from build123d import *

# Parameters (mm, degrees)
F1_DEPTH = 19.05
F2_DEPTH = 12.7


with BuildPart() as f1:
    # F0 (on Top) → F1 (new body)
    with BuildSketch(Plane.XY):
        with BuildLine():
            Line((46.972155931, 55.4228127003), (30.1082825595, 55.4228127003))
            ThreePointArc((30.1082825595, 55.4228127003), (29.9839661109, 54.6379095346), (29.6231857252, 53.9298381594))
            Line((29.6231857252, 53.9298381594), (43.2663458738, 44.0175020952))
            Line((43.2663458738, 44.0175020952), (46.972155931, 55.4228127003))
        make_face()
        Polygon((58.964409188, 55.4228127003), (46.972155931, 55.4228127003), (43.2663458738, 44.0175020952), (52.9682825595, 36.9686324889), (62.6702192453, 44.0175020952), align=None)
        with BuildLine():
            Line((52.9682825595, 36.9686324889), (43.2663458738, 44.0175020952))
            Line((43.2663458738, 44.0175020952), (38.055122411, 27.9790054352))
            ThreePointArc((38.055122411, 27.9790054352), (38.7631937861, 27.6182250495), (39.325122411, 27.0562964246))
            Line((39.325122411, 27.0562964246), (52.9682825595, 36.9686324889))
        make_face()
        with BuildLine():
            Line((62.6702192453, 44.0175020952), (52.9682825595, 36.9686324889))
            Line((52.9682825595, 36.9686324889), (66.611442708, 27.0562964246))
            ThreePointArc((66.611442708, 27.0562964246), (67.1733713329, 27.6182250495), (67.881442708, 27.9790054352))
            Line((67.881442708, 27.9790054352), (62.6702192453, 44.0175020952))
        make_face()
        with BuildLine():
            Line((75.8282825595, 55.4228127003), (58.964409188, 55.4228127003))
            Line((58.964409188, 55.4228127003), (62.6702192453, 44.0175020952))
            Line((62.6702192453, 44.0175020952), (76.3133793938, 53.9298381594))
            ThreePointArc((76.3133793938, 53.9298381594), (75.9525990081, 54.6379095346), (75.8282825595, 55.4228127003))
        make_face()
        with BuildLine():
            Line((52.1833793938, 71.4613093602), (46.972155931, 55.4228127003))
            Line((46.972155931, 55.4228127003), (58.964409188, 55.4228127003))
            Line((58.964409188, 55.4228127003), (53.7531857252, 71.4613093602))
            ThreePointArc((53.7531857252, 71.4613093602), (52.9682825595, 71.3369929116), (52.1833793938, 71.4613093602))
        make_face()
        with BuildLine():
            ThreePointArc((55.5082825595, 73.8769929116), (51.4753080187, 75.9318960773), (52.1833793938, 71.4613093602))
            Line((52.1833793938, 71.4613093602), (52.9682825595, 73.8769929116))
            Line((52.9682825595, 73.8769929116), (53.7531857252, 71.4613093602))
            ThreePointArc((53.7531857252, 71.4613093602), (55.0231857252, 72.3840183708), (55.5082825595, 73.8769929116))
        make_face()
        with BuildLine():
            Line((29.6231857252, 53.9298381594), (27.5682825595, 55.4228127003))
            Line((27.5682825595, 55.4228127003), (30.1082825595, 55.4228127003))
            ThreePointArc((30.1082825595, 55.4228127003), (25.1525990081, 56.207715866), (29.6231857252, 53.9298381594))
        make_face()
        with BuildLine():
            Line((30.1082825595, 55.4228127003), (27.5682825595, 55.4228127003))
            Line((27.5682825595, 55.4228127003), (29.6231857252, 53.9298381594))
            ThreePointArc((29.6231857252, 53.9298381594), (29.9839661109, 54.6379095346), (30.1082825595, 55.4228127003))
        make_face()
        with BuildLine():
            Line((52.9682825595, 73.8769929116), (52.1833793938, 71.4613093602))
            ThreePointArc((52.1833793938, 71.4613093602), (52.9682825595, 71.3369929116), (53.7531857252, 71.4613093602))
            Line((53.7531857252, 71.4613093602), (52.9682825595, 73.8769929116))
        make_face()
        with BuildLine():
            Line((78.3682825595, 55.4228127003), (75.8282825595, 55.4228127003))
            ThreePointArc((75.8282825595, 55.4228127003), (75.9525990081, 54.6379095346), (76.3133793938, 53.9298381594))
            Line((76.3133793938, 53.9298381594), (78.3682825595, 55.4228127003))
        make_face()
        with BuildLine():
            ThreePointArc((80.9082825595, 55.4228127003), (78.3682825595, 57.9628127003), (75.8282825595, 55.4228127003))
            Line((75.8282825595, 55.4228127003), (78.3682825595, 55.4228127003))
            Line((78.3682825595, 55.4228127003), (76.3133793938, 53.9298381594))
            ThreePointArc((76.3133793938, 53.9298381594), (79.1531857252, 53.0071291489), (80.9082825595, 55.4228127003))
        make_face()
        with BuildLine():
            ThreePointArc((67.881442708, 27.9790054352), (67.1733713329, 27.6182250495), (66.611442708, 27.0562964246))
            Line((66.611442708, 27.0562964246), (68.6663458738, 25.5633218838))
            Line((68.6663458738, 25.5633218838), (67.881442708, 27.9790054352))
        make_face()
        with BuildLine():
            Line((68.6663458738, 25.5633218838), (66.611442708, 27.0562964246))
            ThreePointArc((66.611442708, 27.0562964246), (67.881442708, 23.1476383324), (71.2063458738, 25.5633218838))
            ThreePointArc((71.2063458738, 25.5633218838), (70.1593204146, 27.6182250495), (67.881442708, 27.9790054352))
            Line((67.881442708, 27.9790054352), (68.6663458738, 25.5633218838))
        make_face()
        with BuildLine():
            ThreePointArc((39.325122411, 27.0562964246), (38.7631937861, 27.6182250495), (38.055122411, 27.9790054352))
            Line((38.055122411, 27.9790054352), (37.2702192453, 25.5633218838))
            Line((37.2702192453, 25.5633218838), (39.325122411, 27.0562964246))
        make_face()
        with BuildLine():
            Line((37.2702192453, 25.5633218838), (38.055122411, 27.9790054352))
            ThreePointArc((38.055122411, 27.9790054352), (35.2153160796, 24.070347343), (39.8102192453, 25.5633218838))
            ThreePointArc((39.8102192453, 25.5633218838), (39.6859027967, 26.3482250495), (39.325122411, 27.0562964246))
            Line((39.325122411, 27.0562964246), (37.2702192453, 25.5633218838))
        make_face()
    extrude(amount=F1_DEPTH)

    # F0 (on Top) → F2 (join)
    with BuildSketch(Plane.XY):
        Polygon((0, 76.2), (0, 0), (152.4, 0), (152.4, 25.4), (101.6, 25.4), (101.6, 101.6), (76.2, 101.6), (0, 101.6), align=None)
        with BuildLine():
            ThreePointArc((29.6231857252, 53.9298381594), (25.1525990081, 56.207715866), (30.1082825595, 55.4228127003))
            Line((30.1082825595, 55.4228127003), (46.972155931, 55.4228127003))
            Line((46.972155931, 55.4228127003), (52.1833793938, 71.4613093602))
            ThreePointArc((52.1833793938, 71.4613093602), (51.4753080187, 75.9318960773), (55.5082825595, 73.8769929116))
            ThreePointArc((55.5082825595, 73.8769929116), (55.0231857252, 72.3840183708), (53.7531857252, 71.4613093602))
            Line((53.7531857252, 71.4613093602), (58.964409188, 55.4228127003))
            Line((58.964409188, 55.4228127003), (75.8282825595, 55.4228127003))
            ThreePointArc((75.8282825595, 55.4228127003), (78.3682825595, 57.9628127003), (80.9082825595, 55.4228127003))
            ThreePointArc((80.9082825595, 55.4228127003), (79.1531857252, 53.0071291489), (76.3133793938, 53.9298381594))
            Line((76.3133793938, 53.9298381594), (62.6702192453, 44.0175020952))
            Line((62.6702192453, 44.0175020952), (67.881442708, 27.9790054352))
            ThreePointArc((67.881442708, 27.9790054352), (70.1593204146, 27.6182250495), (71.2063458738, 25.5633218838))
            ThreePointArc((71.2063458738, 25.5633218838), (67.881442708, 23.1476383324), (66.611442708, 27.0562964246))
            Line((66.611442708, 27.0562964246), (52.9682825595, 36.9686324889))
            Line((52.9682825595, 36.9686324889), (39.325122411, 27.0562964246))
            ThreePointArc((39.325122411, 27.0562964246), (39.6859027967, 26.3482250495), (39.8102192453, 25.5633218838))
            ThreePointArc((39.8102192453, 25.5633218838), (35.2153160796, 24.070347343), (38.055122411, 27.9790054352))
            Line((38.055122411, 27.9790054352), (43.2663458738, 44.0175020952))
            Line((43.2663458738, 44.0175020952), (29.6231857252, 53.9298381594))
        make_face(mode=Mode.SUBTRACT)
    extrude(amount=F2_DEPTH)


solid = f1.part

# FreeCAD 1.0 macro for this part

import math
import FreeCAD as App
import Part
import Sketcher
from FreeCAD import Vector
Q = App.Units.Quantity


def add_polygon(sketch, points):
    """Adds a closed chain of lines whose ends are joined by coincident constraints."""
    first, n = sketch.GeometryCount, len(points)
    for a, b in zip(points, points[1:] + points[:1]):
        sketch.addGeometry(Part.LineSegment(App.Vector(*a, 0), App.Vector(*b, 0)), False)
    for i in range(n):
        sketch.addConstraint(Sketcher.Constraint("Coincident", first + i, 2, first + (i + 1) % n, 1))

doc = App.newDocument("Part")
params = doc.addObject("Spreadsheet::Sheet", "Params")
for row, (alias, value) in enumerate([
    ("sketch1_radius", "0.1 in"),
    ("pad1_length", "0.75 in"),
    ("sketch2_radius", "0.1 in"),
    ("sketch2_width", "6 in"),
    ("sketch2_width2", "2 in"),
    ("sketch2_height", "1 in"),
    ("pad2_length", "0.5 in"),
], start=1):
    params.set(f"A{row}", alias)
    params.set(f"B{row}", "=" + value)
    params.setAlias(f"B{row}", alias)

body = doc.addObject("PartDesign::Body", "Body")

# Sketch on XY plane
sketch1 = body.newObject("Sketcher::SketchObject", "Sketch")
sketch1.AttachmentSupport = (doc.getObject("XY_Plane"), [""])
sketch1.MapMode = "FlatFace"
sketch1.addGeometry([
    Part.LineSegment(Vector(29.6, 53.9, 0), Vector(43.3, 44, 0)),  # 0
    Part.LineSegment(Vector(43.3, 44, 0), Vector(38.1, 28, 0)),  # 1
    Part.ArcOfCircle(Part.Circle(Vector(37.3, 25.6, 0), Vector(0, 0, 1), 2.5), math.radians(72), math.radians(360)),  # 2
    Part.ArcOfCircle(Part.Circle(Vector(37.3, 25.6, 0), Vector(0, 0, 1), 2.5), math.radians(0), math.radians(36)),  # 3
    Part.LineSegment(Vector(39.3, 27.1, 0), Vector(53, 37, 0)),  # 4
    Part.LineSegment(Vector(53, 37, 0), Vector(66.6, 27.1, 0)),  # 5
    Part.ArcOfCircle(Part.Circle(Vector(68.7, 25.6, 0), Vector(0, 0, 1), 2.5), math.radians(144), math.radians(360)),  # 6
    Part.ArcOfCircle(Part.Circle(Vector(68.7, 25.6, 0), Vector(0, 0, 1), 2.5), math.radians(0), math.radians(108)),  # 7
    Part.LineSegment(Vector(67.9, 28, 0), Vector(62.7, 44, 0)),  # 8
    Part.LineSegment(Vector(62.7, 44, 0), Vector(76.3, 53.9, 0)),  # 9
    Part.ArcOfCircle(Part.Circle(Vector(78.4, 55.4, 0), Vector(0, 0, 1), 2.5), math.radians(-144), math.radians(0)),  # 10
    Part.ArcOfCircle(Part.Circle(Vector(78.4, 55.4, 0), Vector(0, 0, 1), 2.5), math.radians(0), math.radians(180)),  # 11
    Part.LineSegment(Vector(75.8, 55.4, 0), Vector(59, 55.4, 0)),  # 12
    Part.LineSegment(Vector(59, 55.4, 0), Vector(53.8, 71.5, 0)),  # 13
    Part.ArcOfCircle(Part.Circle(Vector(53, 73.9, 0), Vector(0, 0, 1), 2.5), math.radians(-72), math.radians(0)),  # 14
    Part.ArcOfCircle(Part.Circle(Vector(53, 73.9, 0), Vector(0, 0, 1), 2.5), math.radians(0), math.radians(252)),  # 15
    Part.LineSegment(Vector(52.2, 71.5, 0), Vector(47, 55.4, 0)),  # 16
    Part.LineSegment(Vector(47, 55.4, 0), Vector(30.1, 55.4, 0)),  # 17
    Part.ArcOfCircle(Part.Circle(Vector(27.6, 55.4, 0), Vector(0, 0, 1), 2.5), math.radians(0), math.radians(324)),  # 18
], False)
sketch1.addConstraint([
    Sketcher.Constraint("Coincident", 0, 2, 1, 1),
    Sketcher.Constraint("Coincident", 1, 2, 2, 1),
    Sketcher.Constraint("Tangent", 2, 2, 3, 1),
    Sketcher.Constraint("Coincident", 3, 2, 4, 1),
    Sketcher.Constraint("Coincident", 4, 2, 5, 1),
    Sketcher.Constraint("Coincident", 5, 2, 6, 1),
    Sketcher.Constraint("Tangent", 6, 2, 7, 1),
    Sketcher.Constraint("Coincident", 7, 2, 8, 1),
    Sketcher.Constraint("Coincident", 8, 2, 9, 1),
    Sketcher.Constraint("Coincident", 9, 2, 10, 1),
    Sketcher.Constraint("Tangent", 10, 2, 11, 1),
    Sketcher.Constraint("Coincident", 11, 2, 12, 1),
    Sketcher.Constraint("Coincident", 12, 2, 13, 1),
    Sketcher.Constraint("Coincident", 13, 2, 14, 1),
    Sketcher.Constraint("Tangent", 14, 2, 15, 1),
    Sketcher.Constraint("Coincident", 15, 2, 16, 1),
    Sketcher.Constraint("Coincident", 16, 2, 17, 1),
    Sketcher.Constraint("Coincident", 17, 2, 18, 1),
    Sketcher.Constraint("Coincident", 18, 2, 0, 1),
    Sketcher.Constraint("Horizontal", 12),
    Sketcher.Constraint("Horizontal", 17),
    Sketcher.Constraint("Equal", 2, 3),
    Sketcher.Constraint("Equal", 3, 6),
    Sketcher.Constraint("Equal", 6, 7),
    Sketcher.Constraint("Equal", 7, 10),
    Sketcher.Constraint("Equal", 10, 11),
    Sketcher.Constraint("Equal", 11, 14),
    Sketcher.Constraint("Equal", 14, 15),
    Sketcher.Constraint("Equal", 15, 18),
    Sketcher.Constraint("Parallel", 0, 5),
    Sketcher.Constraint("Parallel", 4, 9),
    Sketcher.Constraint("Parallel", 8, 13),
    Sketcher.Constraint("Parallel", 1, 16),
    Sketcher.Constraint("Horizontal", 3, 3, 6, 3),
    Sketcher.Constraint("Horizontal", 11, 3, 18, 3),
    Sketcher.Constraint("Horizontal", 7, 3, 2, 2),
    Sketcher.Constraint("Horizontal", 3, 2, 5, 2),
    Sketcher.Constraint("Horizontal", 2, 2, 6, 2),
    Sketcher.Constraint("Horizontal", 1, 2, 7, 2),
    Sketcher.Constraint("Horizontal", 0, 2, 8, 2),
    Sketcher.Constraint("Horizontal", 18, 3, 10, 2),
    Sketcher.Constraint("Horizontal", 10, 2, 11, 2),
    Sketcher.Constraint("Horizontal", 15, 3, 14, 2),
    Sketcher.Constraint("Horizontal", 13, 2, 15, 2),
    Sketcher.Constraint("Horizontal", 12, 2, 16, 2),
    Sketcher.Constraint("Horizontal", 9, 2, 18, 2),
    Sketcher.Constraint("Vertical", 15, 3, 4, 2),
    Sketcher.Constraint("Equal", 12, 17),
    Sketcher.Constraint("Equal", 0, 1),
    Sketcher.Constraint("Equal", 1, 4),
    Sketcher.Constraint("Equal", 4, 5),
    Sketcher.Constraint("Equal", 9, 13),
    Sketcher.Constraint("Radius", 2, Q("0.1 in")),
    Sketcher.Constraint("Angle", 0, Q("-36 deg")),
    Sketcher.Constraint("Angle", 1, Q("-108 deg")),
    Sketcher.Constraint("DistanceX", 14, 3, 10, 3, Q("1 in")),
    Sketcher.Constraint("DistanceX", 0, 2, 6, 3, Q("1 in")),
    Sketcher.Constraint("DistanceX", 1, 2, 3, 2, Q("0.05 in")),
    Sketcher.Constraint("DistanceX", 12, 2, 12, 1, Q("16.863873 mm")),
    Sketcher.Constraint("DistanceX", -1, 1, 2, 3, Q("37.270219 mm")),
    Sketcher.Constraint("DistanceY", -1, 1, 2, 3, Q("25.563322 mm")),
    Sketcher.Constraint("DistanceX", -1, 1, 9, 2, Q("76.313379 mm")),
])
sketch1.setExpression("Constraints[52]", "Params.sketch1_radius")
pad1 = body.newObject("PartDesign::Pad", "Pad")
pad1.Profile = sketch1
pad1.setExpression("Length", "Params.pad1_length")

# Sketch on XY plane
sketch2 = body.newObject("Sketcher::SketchObject", "Sketch001")
sketch2.AttachmentSupport = (doc.getObject("XY_Plane"), [""])
sketch2.MapMode = "FlatFace"
add_polygon(sketch2, [(0, 0), (152.4, 0), (152.4, 25.4), (101.6, 25.4), (101.6, 101.6), (0, 101.6)])  # lines 0-5
sketch2.addGeometry(Part.LineSegment(Vector(43.3, 44, 0), Vector(29.6, 53.9, 0)), False)  # 6
sketch2.addGeometry(Part.ArcOfCircle(Part.Circle(Vector(27.6, 55.4, 0), Vector(0, 0, 1), 2.5), math.radians(0), math.radians(324)), False)  # 7
sketch2.addGeometry(Part.LineSegment(Vector(30.1, 55.4, 0), Vector(47, 55.4, 0)), False)  # 8
sketch2.addGeometry(Part.LineSegment(Vector(47, 55.4, 0), Vector(52.2, 71.5, 0)), False)  # 9
sketch2.addGeometry(Part.ArcOfCircle(Part.Circle(Vector(53, 73.9, 0), Vector(0, 0, 1), 2.5), math.radians(0), math.radians(252)), False)  # 10
sketch2.addGeometry(Part.ArcOfCircle(Part.Circle(Vector(53, 73.9, 0), Vector(0, 0, 1), 2.5), math.radians(-72), math.radians(0)), False)  # 11
sketch2.addGeometry(Part.LineSegment(Vector(53.8, 71.5, 0), Vector(59, 55.4, 0)), False)  # 12
sketch2.addGeometry(Part.LineSegment(Vector(59, 55.4, 0), Vector(75.8, 55.4, 0)), False)  # 13
sketch2.addGeometry(Part.ArcOfCircle(Part.Circle(Vector(78.4, 55.4, 0), Vector(0, 0, 1), 2.5), math.radians(0), math.radians(180)), False)  # 14
sketch2.addGeometry(Part.ArcOfCircle(Part.Circle(Vector(78.4, 55.4, 0), Vector(0, 0, 1), 2.5), math.radians(-144), math.radians(0)), False)  # 15
sketch2.addGeometry(Part.LineSegment(Vector(76.3, 53.9, 0), Vector(62.7, 44, 0)), False)  # 16
sketch2.addGeometry(Part.LineSegment(Vector(62.7, 44, 0), Vector(67.9, 28, 0)), False)  # 17
sketch2.addGeometry(Part.ArcOfCircle(Part.Circle(Vector(68.7, 25.6, 0), Vector(0, 0, 1), 2.5), math.radians(0), math.radians(108)), False)  # 18
sketch2.addGeometry(Part.ArcOfCircle(Part.Circle(Vector(68.7, 25.6, 0), Vector(0, 0, 1), 2.5), math.radians(144), math.radians(360)), False)  # 19
sketch2.addGeometry(Part.LineSegment(Vector(66.6, 27.1, 0), Vector(53, 37, 0)), False)  # 20
sketch2.addGeometry(Part.LineSegment(Vector(53, 37, 0), Vector(39.3, 27.1, 0)), False)  # 21
sketch2.addGeometry(Part.ArcOfCircle(Part.Circle(Vector(37.3, 25.6, 0), Vector(0, 0, 1), 2.5), math.radians(0), math.radians(36)), False)  # 22
sketch2.addGeometry(Part.ArcOfCircle(Part.Circle(Vector(37.3, 25.6, 0), Vector(0, 0, 1), 2.5), math.radians(72), math.radians(360)), False)  # 23
sketch2.addGeometry(Part.LineSegment(Vector(38.1, 28, 0), Vector(43.3, 44, 0)), False)  # 24
sketch2.addConstraint([
    Sketcher.Constraint("Coincident", 6, 2, 7, 2),
    Sketcher.Constraint("Coincident", 7, 1, 8, 1),
    Sketcher.Constraint("Coincident", 8, 2, 9, 1),
    Sketcher.Constraint("Coincident", 9, 2, 10, 2),
    Sketcher.Constraint("Tangent", 10, 1, 11, 2),
    Sketcher.Constraint("Coincident", 11, 1, 12, 1),
    Sketcher.Constraint("Coincident", 12, 2, 13, 1),
    Sketcher.Constraint("Coincident", 13, 2, 14, 2),
    Sketcher.Constraint("Tangent", 14, 1, 15, 2),
    Sketcher.Constraint("Coincident", 15, 1, 16, 1),
    Sketcher.Constraint("Coincident", 16, 2, 17, 1),
    Sketcher.Constraint("Coincident", 17, 2, 18, 2),
    Sketcher.Constraint("Tangent", 18, 1, 19, 2),
    Sketcher.Constraint("Coincident", 19, 1, 20, 1),
    Sketcher.Constraint("Coincident", 20, 2, 21, 1),
    Sketcher.Constraint("Coincident", 21, 2, 22, 2),
    Sketcher.Constraint("Tangent", 22, 1, 23, 2),
    Sketcher.Constraint("Coincident", 23, 1, 24, 1),
    Sketcher.Constraint("Coincident", 24, 2, 6, 1),
    Sketcher.Constraint("Horizontal", 0),
    Sketcher.Constraint("Vertical", 1),
    Sketcher.Constraint("Horizontal", 2),
    Sketcher.Constraint("Vertical", 3),
    Sketcher.Constraint("Horizontal", 4),
    Sketcher.Constraint("Vertical", 5),
    Sketcher.Constraint("Horizontal", 8),
    Sketcher.Constraint("Horizontal", 13),
    Sketcher.Constraint("Coincident", 5, 2, -1, 1),
    Sketcher.Constraint("Equal", 7, 10),
    Sketcher.Constraint("Equal", 10, 11),
    Sketcher.Constraint("Equal", 11, 14),
    Sketcher.Constraint("Equal", 14, 15),
    Sketcher.Constraint("Equal", 15, 18),
    Sketcher.Constraint("Equal", 18, 19),
    Sketcher.Constraint("Equal", 19, 22),
    Sketcher.Constraint("Equal", 22, 23),
    Sketcher.Constraint("Parallel", 12, 17),
    Sketcher.Constraint("Parallel", 6, 20),
    Sketcher.Constraint("Parallel", 16, 21),
    Sketcher.Constraint("Parallel", 9, 24),
    Sketcher.Constraint("Horizontal", 7, 3, 14, 3),
    Sketcher.Constraint("Horizontal", 19, 3, 22, 3),
    Sketcher.Constraint("Horizontal", 15, 3, 7, 1),
    Sketcher.Constraint("Horizontal", 11, 3, 10, 1),
    Sketcher.Constraint("Horizontal", 9, 2, 11, 1),
    Sketcher.Constraint("Horizontal", 8, 2, 12, 2),
    Sketcher.Constraint("Horizontal", 13, 2, 14, 1),
    Sketcher.Constraint("Horizontal", 6, 2, 15, 1),
    Sketcher.Constraint("Horizontal", 23, 3, 18, 1),
    Sketcher.Constraint("Horizontal", 19, 1, 21, 2),
    Sketcher.Constraint("Horizontal", 18, 1, 22, 1),
    Sketcher.Constraint("Horizontal", 17, 2, 23, 1),
    Sketcher.Constraint("Horizontal", 16, 2, 24, 2),
    Sketcher.Constraint("Vertical", 11, 3, 20, 2),
    Sketcher.Constraint("Equal", 8, 13),
    Sketcher.Constraint("Equal", 4, 5),
    Sketcher.Constraint("Equal", 6, 9),
    Sketcher.Constraint("Equal", 12, 16),
    Sketcher.Constraint("Equal", 16, 17),
    Sketcher.Constraint("Equal", 17, 20),
    Sketcher.Constraint("Radius", 7, Q("0.1 in")),
    Sketcher.Constraint("DistanceX", 0, 1, 0, 2, Q("6 in")),
    Sketcher.Constraint("DistanceX", 2, 2, 2, 1, Q("2 in")),
    Sketcher.Constraint("DistanceY", 1, 1, 1, 2, Q("1 in")),
    Sketcher.Constraint("Angle", 6, Q("144 deg")),
    Sketcher.Constraint("Angle", 9, Q("72 deg")),
    Sketcher.Constraint("DistanceX", 7, 3, 10, 3, Q("1 in")),
    Sketcher.Constraint("DistanceX", 19, 1, 17, 2, Q("0.05 in")),
    Sketcher.Constraint("DistanceX", 8, 1, 8, 2, Q("16.863873 mm")),
    Sketcher.Constraint("DistanceY", -1, 1, 18, 3, Q("25.563322 mm")),
    Sketcher.Constraint("DistanceX", -1, 1, 22, 3, Q("37.270219 mm")),
    Sketcher.Constraint("DistanceY", -1, 1, 6, 2, Q("53.929838 mm")),
    Sketcher.Constraint("DistanceX", -1, 1, 9, 2, Q("52.183379 mm")),
])
sketch2.setExpression("Constraints[66]", "Params.sketch2_radius")
sketch2.setExpression("Constraints[67]", "Params.sketch2_width")
sketch2.setExpression("Constraints[68]", "Params.sketch2_width2")
sketch2.setExpression("Constraints[69]", "Params.sketch2_height")
pad2 = body.newObject("PartDesign::Pad", "Pad001")
pad2.Profile = sketch2
pad2.setExpression("Length", "Params.pad2_length")

doc.recompute()
